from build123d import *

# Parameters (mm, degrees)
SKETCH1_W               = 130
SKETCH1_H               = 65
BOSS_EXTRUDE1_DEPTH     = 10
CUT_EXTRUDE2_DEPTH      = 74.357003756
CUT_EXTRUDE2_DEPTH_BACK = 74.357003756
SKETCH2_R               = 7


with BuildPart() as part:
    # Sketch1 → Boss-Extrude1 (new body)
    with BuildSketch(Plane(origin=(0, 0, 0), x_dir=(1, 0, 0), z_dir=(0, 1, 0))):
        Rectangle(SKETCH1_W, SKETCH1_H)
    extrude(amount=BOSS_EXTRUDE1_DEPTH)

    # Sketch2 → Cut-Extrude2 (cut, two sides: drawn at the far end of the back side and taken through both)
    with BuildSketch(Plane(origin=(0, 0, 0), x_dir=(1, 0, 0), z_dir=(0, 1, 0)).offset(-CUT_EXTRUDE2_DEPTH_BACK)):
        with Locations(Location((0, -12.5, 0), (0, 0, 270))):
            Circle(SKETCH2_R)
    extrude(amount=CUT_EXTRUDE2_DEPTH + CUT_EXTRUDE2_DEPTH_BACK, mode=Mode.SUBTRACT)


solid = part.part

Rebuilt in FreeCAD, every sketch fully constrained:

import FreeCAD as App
import Part
import Sketcher
Q = App.Units.Quantity

doc = App.newDocument("Part")
body = doc.addObject("PartDesign::Body", "Body")

sketch1 = body.newObject("Sketcher::SketchObject", "Sketch")
sketch1.AttachmentSupport = (doc.getObject("XZ_Plane"), [""])
sketch1.MapMode = "FlatFace"
sketch1.addGeometry(Part.LineSegment(App.Vector(-65, -32.5, 0), App.Vector(-65, 32.5, 0)), False)
sketch1.addGeometry(Part.LineSegment(App.Vector(-65, 32.5, 0), App.Vector(65, 32.5, 0)), False)
sketch1.addGeometry(Part.LineSegment(App.Vector(65, 32.5, 0), App.Vector(65, -32.5, 0)), False)
sketch1.addGeometry(Part.LineSegment(App.Vector(65, -32.5, 0), App.Vector(-65, -32.5, 0)), False)
sketch1.addConstraint(Sketcher.Constraint("Coincident", 0, 2, 1, 1))
sketch1.addConstraint(Sketcher.Constraint("Coincident", 1, 2, 2, 1))
sketch1.addConstraint(Sketcher.Constraint("Coincident", 2, 2, 3, 1))
sketch1.addConstraint(Sketcher.Constraint("Coincident", 3, 2, 0, 1))
sketch1.addConstraint(Sketcher.Constraint("Vertical", 0))
sketch1.addConstraint(Sketcher.Constraint("Horizontal", 1))
sketch1.addConstraint(Sketcher.Constraint("Vertical", 2))
sketch1.addConstraint(Sketcher.Constraint("Horizontal", 3))
sketch1.addConstraint(Sketcher.Constraint("Symmetric", 0, 2, 2, 2, -1, 1))
sketch1.addConstraint(Sketcher.Constraint("DistanceX", 1, 1, 1, 2, Q("130 mm")))
sketch1.addConstraint(Sketcher.Constraint("DistanceY", 0, 1, 0, 2, Q("65 mm")))
pad1 = body.newObject("PartDesign::Pad", "Pad")
pad1.Profile = sketch1
pad1.Length = 10
pad1.Reversed = True

sketch2 = body.newObject("Sketcher::SketchObject", "Sketch001")
sketch2.AttachmentSupport = (doc.getObject("XZ_Plane"), [""])
sketch2.MapMode = "FlatFace"
sketch2.addGeometry(Part.Circle(App.Vector(0, 12.5, 0), App.Vector(0, 0, 1), 7), False)
sketch2.addConstraint(Sketcher.Constraint("PointOnObject", 0, 3, -2))
sketch2.addConstraint(Sketcher.Constraint("Diameter", 0, Q("14 mm")))
sketch2.addConstraint(Sketcher.Constraint("DistanceY", -1, 1, 0, 3, Q("12.5 mm")))
pocket1 = body.newObject("PartDesign::Pocket", "Pocket")
pocket1.Profile = sketch2
pocket1.Type = "ThroughAll"
pocket1.Midplane = True

doc.recompute()
